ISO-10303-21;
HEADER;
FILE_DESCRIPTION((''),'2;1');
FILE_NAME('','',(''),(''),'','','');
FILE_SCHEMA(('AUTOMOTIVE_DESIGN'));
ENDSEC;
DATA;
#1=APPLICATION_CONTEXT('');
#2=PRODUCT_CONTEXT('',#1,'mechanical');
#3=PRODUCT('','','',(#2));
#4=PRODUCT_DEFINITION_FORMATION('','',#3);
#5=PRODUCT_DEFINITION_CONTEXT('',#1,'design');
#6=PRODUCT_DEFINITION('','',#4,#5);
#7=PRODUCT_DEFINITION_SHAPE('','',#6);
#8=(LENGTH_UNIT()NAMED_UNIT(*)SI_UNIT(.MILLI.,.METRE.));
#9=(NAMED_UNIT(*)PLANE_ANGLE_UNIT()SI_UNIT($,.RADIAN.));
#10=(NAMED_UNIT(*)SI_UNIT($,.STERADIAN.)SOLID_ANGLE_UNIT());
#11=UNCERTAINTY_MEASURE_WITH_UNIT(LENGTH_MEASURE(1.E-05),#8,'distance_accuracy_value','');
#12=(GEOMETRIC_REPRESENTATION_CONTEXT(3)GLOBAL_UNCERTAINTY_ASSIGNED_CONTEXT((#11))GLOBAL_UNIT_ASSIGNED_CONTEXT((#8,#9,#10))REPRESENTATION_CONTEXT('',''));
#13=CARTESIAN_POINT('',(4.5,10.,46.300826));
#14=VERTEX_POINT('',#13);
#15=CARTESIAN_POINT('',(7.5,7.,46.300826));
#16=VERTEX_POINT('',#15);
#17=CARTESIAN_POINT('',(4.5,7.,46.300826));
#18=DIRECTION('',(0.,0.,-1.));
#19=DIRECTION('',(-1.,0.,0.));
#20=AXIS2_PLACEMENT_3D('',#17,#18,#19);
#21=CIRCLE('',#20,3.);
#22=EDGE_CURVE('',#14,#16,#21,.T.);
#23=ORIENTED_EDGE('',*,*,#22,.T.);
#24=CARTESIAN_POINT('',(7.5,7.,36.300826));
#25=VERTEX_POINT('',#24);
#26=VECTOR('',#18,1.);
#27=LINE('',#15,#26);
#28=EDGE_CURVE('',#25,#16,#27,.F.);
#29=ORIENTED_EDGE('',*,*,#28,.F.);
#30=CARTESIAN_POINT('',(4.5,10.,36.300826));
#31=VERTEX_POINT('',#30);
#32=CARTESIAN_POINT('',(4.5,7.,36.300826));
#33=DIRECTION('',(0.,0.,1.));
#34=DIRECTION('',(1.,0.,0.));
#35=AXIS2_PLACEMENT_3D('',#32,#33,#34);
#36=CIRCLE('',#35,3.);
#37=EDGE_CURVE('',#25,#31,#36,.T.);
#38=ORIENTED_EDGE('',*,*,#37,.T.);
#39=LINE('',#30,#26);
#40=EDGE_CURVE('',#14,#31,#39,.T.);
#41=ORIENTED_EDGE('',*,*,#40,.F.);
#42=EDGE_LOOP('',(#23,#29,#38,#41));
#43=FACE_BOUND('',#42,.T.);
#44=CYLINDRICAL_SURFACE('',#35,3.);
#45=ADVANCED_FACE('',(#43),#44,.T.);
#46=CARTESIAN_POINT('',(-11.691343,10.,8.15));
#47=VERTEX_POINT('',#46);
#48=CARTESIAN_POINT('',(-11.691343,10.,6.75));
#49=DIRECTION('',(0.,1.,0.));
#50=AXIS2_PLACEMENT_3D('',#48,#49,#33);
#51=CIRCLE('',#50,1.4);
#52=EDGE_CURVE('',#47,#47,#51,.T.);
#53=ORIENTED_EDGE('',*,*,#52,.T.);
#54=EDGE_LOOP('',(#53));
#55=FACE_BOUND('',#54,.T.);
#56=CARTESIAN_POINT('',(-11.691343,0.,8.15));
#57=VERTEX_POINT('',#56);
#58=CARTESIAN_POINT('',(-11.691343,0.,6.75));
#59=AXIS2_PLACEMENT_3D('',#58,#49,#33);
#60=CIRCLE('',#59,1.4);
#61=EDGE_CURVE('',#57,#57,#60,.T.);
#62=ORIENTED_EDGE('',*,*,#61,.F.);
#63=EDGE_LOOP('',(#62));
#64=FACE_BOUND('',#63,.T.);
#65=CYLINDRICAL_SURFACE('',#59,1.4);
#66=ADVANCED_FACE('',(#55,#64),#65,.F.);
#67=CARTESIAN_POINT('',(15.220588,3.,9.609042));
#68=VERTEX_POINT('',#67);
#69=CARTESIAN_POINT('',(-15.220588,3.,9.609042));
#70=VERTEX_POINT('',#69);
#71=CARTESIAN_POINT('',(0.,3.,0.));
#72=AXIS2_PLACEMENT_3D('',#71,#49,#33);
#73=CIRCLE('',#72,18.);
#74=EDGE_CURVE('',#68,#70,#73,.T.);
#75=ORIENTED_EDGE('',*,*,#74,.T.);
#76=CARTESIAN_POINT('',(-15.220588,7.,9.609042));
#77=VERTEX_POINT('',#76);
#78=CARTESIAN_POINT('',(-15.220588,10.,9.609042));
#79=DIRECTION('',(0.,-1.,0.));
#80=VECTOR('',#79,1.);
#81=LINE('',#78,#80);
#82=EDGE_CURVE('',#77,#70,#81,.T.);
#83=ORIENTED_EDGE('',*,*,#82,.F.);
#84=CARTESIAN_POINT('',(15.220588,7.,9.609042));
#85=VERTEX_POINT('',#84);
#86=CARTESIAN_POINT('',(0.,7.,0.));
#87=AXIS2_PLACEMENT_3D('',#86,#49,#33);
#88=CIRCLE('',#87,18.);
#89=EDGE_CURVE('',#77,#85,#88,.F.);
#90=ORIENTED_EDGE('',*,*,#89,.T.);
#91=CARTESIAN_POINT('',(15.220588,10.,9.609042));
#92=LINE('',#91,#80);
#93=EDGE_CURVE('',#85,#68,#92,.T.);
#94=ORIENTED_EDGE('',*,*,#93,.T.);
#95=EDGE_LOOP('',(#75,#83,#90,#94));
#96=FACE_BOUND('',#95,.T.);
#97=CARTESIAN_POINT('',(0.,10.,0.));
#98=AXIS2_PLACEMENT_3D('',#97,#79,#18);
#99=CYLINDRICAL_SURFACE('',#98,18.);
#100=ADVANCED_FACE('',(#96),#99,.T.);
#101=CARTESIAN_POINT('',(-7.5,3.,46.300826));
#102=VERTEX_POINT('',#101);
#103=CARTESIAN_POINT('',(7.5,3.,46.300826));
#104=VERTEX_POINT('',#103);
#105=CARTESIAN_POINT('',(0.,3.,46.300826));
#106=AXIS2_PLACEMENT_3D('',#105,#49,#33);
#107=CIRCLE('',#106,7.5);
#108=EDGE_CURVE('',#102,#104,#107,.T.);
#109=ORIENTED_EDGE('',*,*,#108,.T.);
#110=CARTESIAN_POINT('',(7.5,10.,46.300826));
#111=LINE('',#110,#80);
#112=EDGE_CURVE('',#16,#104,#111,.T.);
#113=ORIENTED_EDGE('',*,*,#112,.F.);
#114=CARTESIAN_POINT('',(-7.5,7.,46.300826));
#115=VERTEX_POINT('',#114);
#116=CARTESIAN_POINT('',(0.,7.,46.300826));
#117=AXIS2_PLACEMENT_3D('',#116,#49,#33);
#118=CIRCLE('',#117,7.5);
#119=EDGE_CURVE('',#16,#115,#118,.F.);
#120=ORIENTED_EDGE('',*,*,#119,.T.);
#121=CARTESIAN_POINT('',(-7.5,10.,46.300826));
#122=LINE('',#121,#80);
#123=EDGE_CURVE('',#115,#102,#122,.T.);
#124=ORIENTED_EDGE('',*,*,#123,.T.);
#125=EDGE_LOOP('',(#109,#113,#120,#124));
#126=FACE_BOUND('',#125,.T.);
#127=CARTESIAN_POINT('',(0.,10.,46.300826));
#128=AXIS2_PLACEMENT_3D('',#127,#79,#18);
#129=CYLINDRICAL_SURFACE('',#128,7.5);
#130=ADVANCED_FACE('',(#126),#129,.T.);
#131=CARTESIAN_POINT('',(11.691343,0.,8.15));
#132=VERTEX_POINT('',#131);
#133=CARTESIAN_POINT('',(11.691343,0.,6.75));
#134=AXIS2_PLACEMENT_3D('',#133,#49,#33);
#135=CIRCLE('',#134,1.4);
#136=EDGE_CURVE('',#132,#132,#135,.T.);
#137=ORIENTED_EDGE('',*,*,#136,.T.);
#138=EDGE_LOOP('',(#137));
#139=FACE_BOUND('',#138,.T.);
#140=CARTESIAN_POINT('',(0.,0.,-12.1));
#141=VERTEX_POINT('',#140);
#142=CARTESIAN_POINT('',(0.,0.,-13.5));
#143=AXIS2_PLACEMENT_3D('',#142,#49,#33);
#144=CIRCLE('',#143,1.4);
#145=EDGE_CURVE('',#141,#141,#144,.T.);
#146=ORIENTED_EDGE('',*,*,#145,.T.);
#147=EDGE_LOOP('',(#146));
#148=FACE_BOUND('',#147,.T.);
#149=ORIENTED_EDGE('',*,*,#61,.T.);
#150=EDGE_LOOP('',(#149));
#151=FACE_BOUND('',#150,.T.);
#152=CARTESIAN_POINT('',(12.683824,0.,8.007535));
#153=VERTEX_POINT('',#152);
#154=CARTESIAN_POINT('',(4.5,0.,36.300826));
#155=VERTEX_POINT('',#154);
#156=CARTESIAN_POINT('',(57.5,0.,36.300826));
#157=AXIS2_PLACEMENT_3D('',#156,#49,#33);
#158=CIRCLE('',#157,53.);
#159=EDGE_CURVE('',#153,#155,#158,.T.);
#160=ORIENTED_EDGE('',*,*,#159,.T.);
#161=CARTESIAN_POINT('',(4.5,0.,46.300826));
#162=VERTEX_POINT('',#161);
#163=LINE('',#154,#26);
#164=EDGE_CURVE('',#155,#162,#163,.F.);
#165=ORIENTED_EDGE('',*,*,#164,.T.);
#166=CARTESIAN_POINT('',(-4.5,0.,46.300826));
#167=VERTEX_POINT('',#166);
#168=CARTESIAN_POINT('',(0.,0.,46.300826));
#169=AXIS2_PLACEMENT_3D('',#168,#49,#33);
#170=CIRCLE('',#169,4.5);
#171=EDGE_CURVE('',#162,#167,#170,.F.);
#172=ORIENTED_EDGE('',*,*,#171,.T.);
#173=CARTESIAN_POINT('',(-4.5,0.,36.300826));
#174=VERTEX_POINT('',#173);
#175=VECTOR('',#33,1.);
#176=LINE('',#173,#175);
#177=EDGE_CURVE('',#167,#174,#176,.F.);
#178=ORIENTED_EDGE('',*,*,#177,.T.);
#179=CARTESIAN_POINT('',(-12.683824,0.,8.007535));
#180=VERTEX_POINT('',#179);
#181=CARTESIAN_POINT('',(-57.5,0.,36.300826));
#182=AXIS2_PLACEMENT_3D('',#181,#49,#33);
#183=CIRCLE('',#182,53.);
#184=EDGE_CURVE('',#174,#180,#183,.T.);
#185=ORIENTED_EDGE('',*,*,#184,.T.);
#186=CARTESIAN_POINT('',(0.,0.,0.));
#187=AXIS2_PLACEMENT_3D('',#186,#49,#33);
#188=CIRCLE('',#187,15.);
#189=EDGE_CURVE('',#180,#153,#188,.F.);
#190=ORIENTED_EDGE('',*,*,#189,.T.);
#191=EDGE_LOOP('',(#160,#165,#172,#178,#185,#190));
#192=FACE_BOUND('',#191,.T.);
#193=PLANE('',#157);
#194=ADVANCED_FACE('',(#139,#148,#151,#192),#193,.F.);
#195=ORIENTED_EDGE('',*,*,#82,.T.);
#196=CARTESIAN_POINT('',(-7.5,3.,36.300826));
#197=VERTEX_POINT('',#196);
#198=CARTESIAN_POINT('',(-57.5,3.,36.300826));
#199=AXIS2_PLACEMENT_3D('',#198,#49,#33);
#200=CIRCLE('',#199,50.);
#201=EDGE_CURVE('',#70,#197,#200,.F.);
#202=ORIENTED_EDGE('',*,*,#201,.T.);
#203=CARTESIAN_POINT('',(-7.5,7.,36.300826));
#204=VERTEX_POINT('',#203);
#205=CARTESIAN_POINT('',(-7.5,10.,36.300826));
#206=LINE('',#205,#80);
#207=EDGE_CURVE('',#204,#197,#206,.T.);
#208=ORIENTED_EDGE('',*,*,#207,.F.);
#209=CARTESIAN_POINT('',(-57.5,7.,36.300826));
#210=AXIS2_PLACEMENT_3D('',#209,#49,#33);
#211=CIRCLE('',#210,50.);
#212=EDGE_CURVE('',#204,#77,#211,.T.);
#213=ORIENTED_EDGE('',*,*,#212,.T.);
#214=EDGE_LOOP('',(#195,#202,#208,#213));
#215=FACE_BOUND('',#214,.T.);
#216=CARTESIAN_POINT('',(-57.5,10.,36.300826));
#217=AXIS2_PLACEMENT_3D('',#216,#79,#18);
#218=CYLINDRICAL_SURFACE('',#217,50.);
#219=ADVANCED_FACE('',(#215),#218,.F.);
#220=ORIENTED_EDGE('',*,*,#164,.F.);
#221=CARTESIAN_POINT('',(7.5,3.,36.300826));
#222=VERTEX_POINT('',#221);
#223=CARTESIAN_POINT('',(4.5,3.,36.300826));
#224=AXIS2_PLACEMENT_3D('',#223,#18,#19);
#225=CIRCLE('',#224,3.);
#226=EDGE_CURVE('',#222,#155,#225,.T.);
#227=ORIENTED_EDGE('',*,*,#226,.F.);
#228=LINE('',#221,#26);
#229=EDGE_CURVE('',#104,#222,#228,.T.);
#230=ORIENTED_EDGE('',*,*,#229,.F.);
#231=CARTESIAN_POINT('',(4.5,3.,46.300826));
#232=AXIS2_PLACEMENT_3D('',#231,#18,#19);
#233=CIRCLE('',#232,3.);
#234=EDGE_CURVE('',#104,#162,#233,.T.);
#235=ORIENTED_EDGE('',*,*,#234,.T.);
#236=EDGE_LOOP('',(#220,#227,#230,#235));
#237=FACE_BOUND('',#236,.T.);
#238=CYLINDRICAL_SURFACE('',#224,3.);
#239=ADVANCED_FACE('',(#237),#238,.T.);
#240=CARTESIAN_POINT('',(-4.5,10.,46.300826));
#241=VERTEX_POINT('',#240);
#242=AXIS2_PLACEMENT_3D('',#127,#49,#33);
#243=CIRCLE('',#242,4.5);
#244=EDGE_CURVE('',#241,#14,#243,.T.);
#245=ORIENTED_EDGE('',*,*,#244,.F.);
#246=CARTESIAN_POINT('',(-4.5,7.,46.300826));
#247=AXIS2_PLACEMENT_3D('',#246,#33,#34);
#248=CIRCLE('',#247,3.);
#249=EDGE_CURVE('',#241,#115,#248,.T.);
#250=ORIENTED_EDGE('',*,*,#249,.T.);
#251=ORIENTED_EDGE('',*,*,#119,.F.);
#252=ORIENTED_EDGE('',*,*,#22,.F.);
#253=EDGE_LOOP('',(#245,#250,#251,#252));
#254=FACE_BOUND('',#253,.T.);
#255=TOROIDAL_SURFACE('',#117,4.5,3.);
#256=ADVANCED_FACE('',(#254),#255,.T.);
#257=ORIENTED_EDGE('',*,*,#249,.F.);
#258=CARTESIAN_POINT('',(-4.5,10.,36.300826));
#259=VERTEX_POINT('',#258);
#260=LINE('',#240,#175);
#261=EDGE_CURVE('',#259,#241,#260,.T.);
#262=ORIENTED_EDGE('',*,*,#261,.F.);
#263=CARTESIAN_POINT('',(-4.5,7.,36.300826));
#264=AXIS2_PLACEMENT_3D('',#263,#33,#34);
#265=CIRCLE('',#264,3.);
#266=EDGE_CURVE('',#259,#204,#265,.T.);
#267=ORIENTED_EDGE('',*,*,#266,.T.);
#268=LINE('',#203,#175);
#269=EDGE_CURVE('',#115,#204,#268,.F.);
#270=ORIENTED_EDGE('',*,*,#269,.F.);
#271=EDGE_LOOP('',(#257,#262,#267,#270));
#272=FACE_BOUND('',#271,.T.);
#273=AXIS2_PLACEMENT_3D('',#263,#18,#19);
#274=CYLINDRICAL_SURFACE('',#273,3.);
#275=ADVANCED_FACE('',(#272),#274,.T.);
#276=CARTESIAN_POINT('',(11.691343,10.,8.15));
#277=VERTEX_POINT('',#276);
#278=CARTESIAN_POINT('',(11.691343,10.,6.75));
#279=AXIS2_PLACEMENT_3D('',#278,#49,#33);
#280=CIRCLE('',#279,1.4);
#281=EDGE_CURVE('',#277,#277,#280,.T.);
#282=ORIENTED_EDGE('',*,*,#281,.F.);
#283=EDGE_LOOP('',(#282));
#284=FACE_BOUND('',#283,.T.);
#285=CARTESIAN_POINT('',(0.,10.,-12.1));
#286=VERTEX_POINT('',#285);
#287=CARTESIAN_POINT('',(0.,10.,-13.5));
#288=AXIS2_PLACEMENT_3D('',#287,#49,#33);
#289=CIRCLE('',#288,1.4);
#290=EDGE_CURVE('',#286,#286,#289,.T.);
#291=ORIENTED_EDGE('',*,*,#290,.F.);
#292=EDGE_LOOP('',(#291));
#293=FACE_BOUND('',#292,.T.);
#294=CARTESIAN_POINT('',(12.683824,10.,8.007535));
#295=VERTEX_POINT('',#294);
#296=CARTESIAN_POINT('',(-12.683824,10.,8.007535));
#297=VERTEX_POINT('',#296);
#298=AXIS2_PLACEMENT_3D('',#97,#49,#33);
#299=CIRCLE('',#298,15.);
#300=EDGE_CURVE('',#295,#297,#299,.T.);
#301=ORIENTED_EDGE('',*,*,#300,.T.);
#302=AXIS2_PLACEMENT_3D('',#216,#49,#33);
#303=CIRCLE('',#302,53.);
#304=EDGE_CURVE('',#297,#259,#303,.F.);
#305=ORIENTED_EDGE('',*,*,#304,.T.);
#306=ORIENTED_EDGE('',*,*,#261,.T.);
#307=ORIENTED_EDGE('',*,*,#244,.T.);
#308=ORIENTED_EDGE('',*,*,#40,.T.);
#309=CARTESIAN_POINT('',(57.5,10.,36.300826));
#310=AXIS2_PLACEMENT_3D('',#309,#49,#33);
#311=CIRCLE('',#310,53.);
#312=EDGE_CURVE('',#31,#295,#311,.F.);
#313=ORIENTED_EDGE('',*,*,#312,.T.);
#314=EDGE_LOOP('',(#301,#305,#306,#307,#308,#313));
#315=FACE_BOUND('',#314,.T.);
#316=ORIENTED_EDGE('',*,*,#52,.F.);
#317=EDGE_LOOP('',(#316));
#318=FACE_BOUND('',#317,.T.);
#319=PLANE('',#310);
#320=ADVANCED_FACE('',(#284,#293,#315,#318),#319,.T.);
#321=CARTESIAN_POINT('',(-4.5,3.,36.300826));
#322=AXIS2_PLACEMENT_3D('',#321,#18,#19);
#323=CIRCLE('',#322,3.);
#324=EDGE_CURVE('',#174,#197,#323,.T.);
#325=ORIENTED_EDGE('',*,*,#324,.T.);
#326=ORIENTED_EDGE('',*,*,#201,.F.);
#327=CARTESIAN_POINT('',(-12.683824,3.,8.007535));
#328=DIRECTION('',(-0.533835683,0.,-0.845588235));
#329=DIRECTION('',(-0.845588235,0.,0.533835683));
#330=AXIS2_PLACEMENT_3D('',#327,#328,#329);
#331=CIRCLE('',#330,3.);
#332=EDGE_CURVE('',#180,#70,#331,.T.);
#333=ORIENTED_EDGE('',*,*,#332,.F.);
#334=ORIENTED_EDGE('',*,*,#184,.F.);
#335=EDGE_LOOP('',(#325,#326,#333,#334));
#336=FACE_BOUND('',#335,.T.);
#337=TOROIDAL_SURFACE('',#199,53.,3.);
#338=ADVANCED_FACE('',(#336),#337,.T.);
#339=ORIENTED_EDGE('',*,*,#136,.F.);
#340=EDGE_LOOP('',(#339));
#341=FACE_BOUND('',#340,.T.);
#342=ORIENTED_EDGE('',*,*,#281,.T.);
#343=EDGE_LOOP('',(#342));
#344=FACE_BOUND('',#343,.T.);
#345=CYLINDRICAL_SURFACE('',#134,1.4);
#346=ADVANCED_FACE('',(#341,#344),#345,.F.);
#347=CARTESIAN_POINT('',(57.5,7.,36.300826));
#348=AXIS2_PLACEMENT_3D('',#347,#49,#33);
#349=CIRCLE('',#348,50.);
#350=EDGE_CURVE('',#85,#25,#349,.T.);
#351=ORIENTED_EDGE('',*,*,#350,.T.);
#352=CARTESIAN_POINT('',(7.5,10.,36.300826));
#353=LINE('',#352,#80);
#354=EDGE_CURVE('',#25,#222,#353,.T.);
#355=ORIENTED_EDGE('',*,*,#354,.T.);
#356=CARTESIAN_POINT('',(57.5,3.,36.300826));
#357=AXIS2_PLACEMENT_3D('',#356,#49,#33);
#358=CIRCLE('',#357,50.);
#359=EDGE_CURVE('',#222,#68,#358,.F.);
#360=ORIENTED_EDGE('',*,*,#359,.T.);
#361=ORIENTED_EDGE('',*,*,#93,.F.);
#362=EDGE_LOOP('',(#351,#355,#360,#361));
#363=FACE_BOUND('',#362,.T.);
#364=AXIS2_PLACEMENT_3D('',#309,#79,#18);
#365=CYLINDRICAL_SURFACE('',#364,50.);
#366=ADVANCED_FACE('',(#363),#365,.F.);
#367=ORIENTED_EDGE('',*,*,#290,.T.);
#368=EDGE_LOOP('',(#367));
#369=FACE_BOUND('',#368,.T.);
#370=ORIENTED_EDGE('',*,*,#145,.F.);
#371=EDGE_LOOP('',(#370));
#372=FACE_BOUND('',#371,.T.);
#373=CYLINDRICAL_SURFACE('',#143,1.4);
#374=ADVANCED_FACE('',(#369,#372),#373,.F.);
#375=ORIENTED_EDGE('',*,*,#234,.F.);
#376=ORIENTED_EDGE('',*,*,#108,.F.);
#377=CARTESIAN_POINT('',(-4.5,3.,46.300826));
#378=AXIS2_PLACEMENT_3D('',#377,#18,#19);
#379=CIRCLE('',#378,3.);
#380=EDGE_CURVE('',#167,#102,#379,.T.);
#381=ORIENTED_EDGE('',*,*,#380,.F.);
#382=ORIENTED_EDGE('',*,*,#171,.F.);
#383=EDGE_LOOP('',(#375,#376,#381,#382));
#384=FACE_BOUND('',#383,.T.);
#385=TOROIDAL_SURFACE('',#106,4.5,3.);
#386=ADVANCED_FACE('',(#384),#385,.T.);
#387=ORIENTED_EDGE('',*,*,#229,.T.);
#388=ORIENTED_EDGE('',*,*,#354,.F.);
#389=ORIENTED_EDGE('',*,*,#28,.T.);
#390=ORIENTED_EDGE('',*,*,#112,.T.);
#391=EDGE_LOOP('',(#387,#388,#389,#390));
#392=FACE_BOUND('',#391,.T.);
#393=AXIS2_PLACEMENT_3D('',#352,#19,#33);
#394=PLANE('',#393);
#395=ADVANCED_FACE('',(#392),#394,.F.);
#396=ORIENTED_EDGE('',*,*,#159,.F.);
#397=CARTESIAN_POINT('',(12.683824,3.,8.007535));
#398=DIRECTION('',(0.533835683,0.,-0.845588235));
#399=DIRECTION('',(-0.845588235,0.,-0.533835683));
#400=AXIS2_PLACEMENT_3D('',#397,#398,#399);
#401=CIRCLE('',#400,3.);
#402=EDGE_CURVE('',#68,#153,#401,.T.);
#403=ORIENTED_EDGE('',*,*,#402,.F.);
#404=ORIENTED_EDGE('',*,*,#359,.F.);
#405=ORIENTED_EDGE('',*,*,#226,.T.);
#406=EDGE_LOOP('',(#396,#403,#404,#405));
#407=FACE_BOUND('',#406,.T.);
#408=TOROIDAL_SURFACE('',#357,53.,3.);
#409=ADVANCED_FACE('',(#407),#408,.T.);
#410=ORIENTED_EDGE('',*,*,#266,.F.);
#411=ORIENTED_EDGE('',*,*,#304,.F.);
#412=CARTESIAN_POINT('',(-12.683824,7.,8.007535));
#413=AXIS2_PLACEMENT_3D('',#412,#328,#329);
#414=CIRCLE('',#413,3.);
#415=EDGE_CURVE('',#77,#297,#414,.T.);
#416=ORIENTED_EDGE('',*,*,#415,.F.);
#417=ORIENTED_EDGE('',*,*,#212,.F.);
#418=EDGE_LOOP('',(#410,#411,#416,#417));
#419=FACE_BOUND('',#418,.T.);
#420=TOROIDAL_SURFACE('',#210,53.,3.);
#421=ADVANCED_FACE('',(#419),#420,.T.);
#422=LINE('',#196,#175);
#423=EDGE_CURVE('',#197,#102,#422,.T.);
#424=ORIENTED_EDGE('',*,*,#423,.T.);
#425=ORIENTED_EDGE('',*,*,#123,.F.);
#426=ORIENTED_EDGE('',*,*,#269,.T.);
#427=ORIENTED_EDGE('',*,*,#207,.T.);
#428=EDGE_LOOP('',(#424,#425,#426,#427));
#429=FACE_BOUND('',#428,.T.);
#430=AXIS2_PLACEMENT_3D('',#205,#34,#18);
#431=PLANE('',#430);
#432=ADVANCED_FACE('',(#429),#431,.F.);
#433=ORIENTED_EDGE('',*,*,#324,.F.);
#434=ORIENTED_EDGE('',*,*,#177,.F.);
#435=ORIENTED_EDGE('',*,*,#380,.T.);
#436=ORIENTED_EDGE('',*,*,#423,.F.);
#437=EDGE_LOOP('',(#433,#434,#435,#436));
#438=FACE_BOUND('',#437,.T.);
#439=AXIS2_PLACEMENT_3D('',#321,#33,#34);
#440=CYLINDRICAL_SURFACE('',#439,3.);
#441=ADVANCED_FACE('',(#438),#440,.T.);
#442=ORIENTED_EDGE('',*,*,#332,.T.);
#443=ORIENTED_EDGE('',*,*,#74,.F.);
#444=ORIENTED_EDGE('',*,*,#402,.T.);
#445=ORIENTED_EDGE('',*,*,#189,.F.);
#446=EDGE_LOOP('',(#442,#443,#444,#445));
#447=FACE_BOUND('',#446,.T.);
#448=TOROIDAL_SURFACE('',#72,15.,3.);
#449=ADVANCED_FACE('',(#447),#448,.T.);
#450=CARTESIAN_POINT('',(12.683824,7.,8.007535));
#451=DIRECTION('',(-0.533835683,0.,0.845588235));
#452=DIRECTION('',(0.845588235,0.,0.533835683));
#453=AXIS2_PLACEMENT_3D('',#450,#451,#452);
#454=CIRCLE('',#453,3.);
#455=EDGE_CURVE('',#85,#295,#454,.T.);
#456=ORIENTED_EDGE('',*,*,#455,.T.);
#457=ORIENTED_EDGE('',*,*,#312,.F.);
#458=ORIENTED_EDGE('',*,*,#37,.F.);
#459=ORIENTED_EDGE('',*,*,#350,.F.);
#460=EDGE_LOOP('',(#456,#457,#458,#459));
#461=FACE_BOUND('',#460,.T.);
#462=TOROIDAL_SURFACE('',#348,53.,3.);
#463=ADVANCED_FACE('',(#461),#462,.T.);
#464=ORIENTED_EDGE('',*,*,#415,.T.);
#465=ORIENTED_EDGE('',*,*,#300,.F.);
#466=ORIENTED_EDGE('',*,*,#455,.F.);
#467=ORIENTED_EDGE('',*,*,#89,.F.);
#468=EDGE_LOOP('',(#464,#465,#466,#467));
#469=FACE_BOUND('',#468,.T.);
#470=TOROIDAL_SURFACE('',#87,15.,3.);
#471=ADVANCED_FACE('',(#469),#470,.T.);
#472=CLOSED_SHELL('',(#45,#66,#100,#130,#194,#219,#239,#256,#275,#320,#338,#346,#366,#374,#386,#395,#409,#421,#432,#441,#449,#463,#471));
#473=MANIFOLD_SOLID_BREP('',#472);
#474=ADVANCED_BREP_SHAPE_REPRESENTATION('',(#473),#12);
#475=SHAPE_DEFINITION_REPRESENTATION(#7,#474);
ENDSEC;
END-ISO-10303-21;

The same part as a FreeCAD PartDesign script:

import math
import FreeCAD as App
import Part
import Sketcher

V = App.Vector
Q = App.Units.Quantity


def edges_at(feature, points):
    """Names of the edges that pass closest to the given points."""
    edges = feature.Shape.Edges
    near = lambda p: min(range(len(edges)), key=lambda i: edges[i].distToShape(Part.Vertex(*p))[0])
    return sorted({f"Edge{near(p) + 1}" for p in points})

doc = App.newDocument("Part")
body = doc.addObject("PartDesign::Body", "Body")

# Sketch on XZ plane
sketch1 = body.newObject("Sketcher::SketchObject", "Sketch")
sketch1.AttachmentSupport = (doc.getObject("XZ_Plane"), [""])
sketch1.MapMode = "FlatFace"
sketch1.addGeometry(Part.LineSegment(V(7.5, 46.300826, 0), V(7.5, 36.300826, 0)), False)
sketch1.addGeometry(Part.ArcOfCircle(Part.Circle(V(57.5, 36.300826, 0), V(0, 0, 1), 50), math.radians(-180), math.radians(-147.735015)), False)
sketch1.addGeometry(Part.ArcOfCircle(Part.Circle(V(0, 0, 0), V(0, 0, 1), 18), math.radians(147.735015), math.radians(392.264985)), False)
sketch1.addGeometry(Part.ArcOfCircle(Part.Circle(V(-57.5, 36.300826, 0), V(0, 0, 1), 50), math.radians(-32.264985), math.radians(0)), False)
sketch1.addGeometry(Part.LineSegment(V(-7.5, 36.300826, 0), V(-7.5, 46.300826, 0)), False)
sketch1.addGeometry(Part.ArcOfCircle(Part.Circle(V(0, 46.300826, 0), V(0, 0, 1), 7.5), math.radians(0), math.radians(180)), False)
sketch1.addConstraint(Sketcher.Constraint("Tangent", 0, 2, 1, 1))
sketch1.addConstraint(Sketcher.Constraint("Tangent", 1, 2, 2, 2))
sketch1.addConstraint(Sketcher.Constraint("Tangent", 2, 1, 3, 1))
sketch1.addConstraint(Sketcher.Constraint("Tangent", 3, 2, 4, 1))
sketch1.addConstraint(Sketcher.Constraint("Tangent", 4, 2, 5, 2))
sketch1.addConstraint(Sketcher.Constraint("Tangent", 5, 1, 0, 1))
sketch1.addConstraint(Sketcher.Constraint("Vertical", 0))
sketch1.addConstraint(Sketcher.Constraint("Vertical", 4))
sketch1.addConstraint(Sketcher.Constraint("Coincident", 2, 3, -1, 1))
sketch1.addConstraint(Sketcher.Constraint("Equal", 1, 3))
sketch1.addConstraint(Sketcher.Constraint("PointOnObject", 5, 3, -2))
sketch1.addConstraint(Sketcher.Constraint("Radius", 1, Q("50 mm")))
sketch1.addConstraint(Sketcher.Constraint("Radius", 2, Q("18 mm")))
sketch1.addConstraint(Sketcher.Constraint("Radius", 5, Q("7.5 mm")))
sketch1.addConstraint(Sketcher.Constraint("DistanceY", 0, 2, 0, 1, Q("10 mm")))
pad1 = body.newObject("PartDesign::Pad", "Pad")
pad1.Profile = sketch1
pad1.Length = 10
pad1.Reversed = True
doc.recompute()

fillet = body.newObject("PartDesign::Fillet", "Fillet")
fillet.Base = (pad1, edges_at(pad1, [
    (-9.469, 10, 22.408),
    (-7.5, 10, 41.301),
    (0, 10, 53.801),
    (7.5, 10, 41.301),
    (9.469, 10, 22.408),
    (7.5, 0, 41.301),
    (0, 0, 53.801),
    (-7.5, 0, 41.301),
    (-9.469, 0, 22.408),
    (0, 0, -18),
    (9.469, 0, 22.408),
    (0, 10, -18),
]))
fillet.Radius = 3

# Sketch on XZ plane
sketch2 = body.newObject("Sketcher::SketchObject", "Sketch001")
sketch2.AttachmentSupport = (doc.getObject("XZ_Plane"), [""])
sketch2.MapMode = "FlatFace"
sketch2.AttachmentOffset = App.Placement(V(0, 0, -10), App.Rotation())
sketch2.addGeometry(Part.Circle(V(0, -13.5, 0), V(0, 0, 1), 1.4), False)
sketch2.addGeometry(Part.Circle(V(-11.691343, 6.75, 0), V(0, 0, 1), 1.4), False)
sketch2.addGeometry(Part.Circle(V(11.691343, 6.75, 0), V(0, 0, 1), 1.4), False)
sketch2.addConstraint(Sketcher.Constraint("Equal", 0, 1))
sketch2.addConstraint(Sketcher.Constraint("Equal", 1, 2))
sketch2.addConstraint(Sketcher.Constraint("Symmetric", 1, 3, 2, 3, -2))
sketch2.addConstraint(Sketcher.Constraint("PointOnObject", 0, 3, -2))
sketch2.addConstraint(Sketcher.Constraint("Diameter", 0, Q("2.8 mm")))
sketch2.addConstraint(Sketcher.Constraint("DistanceY", 0, 3, -1, 1, Q("13.5 mm")))
sketch2.addConstraint(Sketcher.Constraint("DistanceY", -1, 1, 1, 3, Q("6.75 mm")))
sketch2.addConstraint(Sketcher.Constraint("DistanceX", 1, 3, -1, 1, Q("11.691343 mm")))
pocket1 = body.newObject("PartDesign::Pocket", "Pocket")
pocket1.Profile = sketch2
pocket1.Type = "ThroughAll"
pocket1.Reversed = True

doc.recompute()
